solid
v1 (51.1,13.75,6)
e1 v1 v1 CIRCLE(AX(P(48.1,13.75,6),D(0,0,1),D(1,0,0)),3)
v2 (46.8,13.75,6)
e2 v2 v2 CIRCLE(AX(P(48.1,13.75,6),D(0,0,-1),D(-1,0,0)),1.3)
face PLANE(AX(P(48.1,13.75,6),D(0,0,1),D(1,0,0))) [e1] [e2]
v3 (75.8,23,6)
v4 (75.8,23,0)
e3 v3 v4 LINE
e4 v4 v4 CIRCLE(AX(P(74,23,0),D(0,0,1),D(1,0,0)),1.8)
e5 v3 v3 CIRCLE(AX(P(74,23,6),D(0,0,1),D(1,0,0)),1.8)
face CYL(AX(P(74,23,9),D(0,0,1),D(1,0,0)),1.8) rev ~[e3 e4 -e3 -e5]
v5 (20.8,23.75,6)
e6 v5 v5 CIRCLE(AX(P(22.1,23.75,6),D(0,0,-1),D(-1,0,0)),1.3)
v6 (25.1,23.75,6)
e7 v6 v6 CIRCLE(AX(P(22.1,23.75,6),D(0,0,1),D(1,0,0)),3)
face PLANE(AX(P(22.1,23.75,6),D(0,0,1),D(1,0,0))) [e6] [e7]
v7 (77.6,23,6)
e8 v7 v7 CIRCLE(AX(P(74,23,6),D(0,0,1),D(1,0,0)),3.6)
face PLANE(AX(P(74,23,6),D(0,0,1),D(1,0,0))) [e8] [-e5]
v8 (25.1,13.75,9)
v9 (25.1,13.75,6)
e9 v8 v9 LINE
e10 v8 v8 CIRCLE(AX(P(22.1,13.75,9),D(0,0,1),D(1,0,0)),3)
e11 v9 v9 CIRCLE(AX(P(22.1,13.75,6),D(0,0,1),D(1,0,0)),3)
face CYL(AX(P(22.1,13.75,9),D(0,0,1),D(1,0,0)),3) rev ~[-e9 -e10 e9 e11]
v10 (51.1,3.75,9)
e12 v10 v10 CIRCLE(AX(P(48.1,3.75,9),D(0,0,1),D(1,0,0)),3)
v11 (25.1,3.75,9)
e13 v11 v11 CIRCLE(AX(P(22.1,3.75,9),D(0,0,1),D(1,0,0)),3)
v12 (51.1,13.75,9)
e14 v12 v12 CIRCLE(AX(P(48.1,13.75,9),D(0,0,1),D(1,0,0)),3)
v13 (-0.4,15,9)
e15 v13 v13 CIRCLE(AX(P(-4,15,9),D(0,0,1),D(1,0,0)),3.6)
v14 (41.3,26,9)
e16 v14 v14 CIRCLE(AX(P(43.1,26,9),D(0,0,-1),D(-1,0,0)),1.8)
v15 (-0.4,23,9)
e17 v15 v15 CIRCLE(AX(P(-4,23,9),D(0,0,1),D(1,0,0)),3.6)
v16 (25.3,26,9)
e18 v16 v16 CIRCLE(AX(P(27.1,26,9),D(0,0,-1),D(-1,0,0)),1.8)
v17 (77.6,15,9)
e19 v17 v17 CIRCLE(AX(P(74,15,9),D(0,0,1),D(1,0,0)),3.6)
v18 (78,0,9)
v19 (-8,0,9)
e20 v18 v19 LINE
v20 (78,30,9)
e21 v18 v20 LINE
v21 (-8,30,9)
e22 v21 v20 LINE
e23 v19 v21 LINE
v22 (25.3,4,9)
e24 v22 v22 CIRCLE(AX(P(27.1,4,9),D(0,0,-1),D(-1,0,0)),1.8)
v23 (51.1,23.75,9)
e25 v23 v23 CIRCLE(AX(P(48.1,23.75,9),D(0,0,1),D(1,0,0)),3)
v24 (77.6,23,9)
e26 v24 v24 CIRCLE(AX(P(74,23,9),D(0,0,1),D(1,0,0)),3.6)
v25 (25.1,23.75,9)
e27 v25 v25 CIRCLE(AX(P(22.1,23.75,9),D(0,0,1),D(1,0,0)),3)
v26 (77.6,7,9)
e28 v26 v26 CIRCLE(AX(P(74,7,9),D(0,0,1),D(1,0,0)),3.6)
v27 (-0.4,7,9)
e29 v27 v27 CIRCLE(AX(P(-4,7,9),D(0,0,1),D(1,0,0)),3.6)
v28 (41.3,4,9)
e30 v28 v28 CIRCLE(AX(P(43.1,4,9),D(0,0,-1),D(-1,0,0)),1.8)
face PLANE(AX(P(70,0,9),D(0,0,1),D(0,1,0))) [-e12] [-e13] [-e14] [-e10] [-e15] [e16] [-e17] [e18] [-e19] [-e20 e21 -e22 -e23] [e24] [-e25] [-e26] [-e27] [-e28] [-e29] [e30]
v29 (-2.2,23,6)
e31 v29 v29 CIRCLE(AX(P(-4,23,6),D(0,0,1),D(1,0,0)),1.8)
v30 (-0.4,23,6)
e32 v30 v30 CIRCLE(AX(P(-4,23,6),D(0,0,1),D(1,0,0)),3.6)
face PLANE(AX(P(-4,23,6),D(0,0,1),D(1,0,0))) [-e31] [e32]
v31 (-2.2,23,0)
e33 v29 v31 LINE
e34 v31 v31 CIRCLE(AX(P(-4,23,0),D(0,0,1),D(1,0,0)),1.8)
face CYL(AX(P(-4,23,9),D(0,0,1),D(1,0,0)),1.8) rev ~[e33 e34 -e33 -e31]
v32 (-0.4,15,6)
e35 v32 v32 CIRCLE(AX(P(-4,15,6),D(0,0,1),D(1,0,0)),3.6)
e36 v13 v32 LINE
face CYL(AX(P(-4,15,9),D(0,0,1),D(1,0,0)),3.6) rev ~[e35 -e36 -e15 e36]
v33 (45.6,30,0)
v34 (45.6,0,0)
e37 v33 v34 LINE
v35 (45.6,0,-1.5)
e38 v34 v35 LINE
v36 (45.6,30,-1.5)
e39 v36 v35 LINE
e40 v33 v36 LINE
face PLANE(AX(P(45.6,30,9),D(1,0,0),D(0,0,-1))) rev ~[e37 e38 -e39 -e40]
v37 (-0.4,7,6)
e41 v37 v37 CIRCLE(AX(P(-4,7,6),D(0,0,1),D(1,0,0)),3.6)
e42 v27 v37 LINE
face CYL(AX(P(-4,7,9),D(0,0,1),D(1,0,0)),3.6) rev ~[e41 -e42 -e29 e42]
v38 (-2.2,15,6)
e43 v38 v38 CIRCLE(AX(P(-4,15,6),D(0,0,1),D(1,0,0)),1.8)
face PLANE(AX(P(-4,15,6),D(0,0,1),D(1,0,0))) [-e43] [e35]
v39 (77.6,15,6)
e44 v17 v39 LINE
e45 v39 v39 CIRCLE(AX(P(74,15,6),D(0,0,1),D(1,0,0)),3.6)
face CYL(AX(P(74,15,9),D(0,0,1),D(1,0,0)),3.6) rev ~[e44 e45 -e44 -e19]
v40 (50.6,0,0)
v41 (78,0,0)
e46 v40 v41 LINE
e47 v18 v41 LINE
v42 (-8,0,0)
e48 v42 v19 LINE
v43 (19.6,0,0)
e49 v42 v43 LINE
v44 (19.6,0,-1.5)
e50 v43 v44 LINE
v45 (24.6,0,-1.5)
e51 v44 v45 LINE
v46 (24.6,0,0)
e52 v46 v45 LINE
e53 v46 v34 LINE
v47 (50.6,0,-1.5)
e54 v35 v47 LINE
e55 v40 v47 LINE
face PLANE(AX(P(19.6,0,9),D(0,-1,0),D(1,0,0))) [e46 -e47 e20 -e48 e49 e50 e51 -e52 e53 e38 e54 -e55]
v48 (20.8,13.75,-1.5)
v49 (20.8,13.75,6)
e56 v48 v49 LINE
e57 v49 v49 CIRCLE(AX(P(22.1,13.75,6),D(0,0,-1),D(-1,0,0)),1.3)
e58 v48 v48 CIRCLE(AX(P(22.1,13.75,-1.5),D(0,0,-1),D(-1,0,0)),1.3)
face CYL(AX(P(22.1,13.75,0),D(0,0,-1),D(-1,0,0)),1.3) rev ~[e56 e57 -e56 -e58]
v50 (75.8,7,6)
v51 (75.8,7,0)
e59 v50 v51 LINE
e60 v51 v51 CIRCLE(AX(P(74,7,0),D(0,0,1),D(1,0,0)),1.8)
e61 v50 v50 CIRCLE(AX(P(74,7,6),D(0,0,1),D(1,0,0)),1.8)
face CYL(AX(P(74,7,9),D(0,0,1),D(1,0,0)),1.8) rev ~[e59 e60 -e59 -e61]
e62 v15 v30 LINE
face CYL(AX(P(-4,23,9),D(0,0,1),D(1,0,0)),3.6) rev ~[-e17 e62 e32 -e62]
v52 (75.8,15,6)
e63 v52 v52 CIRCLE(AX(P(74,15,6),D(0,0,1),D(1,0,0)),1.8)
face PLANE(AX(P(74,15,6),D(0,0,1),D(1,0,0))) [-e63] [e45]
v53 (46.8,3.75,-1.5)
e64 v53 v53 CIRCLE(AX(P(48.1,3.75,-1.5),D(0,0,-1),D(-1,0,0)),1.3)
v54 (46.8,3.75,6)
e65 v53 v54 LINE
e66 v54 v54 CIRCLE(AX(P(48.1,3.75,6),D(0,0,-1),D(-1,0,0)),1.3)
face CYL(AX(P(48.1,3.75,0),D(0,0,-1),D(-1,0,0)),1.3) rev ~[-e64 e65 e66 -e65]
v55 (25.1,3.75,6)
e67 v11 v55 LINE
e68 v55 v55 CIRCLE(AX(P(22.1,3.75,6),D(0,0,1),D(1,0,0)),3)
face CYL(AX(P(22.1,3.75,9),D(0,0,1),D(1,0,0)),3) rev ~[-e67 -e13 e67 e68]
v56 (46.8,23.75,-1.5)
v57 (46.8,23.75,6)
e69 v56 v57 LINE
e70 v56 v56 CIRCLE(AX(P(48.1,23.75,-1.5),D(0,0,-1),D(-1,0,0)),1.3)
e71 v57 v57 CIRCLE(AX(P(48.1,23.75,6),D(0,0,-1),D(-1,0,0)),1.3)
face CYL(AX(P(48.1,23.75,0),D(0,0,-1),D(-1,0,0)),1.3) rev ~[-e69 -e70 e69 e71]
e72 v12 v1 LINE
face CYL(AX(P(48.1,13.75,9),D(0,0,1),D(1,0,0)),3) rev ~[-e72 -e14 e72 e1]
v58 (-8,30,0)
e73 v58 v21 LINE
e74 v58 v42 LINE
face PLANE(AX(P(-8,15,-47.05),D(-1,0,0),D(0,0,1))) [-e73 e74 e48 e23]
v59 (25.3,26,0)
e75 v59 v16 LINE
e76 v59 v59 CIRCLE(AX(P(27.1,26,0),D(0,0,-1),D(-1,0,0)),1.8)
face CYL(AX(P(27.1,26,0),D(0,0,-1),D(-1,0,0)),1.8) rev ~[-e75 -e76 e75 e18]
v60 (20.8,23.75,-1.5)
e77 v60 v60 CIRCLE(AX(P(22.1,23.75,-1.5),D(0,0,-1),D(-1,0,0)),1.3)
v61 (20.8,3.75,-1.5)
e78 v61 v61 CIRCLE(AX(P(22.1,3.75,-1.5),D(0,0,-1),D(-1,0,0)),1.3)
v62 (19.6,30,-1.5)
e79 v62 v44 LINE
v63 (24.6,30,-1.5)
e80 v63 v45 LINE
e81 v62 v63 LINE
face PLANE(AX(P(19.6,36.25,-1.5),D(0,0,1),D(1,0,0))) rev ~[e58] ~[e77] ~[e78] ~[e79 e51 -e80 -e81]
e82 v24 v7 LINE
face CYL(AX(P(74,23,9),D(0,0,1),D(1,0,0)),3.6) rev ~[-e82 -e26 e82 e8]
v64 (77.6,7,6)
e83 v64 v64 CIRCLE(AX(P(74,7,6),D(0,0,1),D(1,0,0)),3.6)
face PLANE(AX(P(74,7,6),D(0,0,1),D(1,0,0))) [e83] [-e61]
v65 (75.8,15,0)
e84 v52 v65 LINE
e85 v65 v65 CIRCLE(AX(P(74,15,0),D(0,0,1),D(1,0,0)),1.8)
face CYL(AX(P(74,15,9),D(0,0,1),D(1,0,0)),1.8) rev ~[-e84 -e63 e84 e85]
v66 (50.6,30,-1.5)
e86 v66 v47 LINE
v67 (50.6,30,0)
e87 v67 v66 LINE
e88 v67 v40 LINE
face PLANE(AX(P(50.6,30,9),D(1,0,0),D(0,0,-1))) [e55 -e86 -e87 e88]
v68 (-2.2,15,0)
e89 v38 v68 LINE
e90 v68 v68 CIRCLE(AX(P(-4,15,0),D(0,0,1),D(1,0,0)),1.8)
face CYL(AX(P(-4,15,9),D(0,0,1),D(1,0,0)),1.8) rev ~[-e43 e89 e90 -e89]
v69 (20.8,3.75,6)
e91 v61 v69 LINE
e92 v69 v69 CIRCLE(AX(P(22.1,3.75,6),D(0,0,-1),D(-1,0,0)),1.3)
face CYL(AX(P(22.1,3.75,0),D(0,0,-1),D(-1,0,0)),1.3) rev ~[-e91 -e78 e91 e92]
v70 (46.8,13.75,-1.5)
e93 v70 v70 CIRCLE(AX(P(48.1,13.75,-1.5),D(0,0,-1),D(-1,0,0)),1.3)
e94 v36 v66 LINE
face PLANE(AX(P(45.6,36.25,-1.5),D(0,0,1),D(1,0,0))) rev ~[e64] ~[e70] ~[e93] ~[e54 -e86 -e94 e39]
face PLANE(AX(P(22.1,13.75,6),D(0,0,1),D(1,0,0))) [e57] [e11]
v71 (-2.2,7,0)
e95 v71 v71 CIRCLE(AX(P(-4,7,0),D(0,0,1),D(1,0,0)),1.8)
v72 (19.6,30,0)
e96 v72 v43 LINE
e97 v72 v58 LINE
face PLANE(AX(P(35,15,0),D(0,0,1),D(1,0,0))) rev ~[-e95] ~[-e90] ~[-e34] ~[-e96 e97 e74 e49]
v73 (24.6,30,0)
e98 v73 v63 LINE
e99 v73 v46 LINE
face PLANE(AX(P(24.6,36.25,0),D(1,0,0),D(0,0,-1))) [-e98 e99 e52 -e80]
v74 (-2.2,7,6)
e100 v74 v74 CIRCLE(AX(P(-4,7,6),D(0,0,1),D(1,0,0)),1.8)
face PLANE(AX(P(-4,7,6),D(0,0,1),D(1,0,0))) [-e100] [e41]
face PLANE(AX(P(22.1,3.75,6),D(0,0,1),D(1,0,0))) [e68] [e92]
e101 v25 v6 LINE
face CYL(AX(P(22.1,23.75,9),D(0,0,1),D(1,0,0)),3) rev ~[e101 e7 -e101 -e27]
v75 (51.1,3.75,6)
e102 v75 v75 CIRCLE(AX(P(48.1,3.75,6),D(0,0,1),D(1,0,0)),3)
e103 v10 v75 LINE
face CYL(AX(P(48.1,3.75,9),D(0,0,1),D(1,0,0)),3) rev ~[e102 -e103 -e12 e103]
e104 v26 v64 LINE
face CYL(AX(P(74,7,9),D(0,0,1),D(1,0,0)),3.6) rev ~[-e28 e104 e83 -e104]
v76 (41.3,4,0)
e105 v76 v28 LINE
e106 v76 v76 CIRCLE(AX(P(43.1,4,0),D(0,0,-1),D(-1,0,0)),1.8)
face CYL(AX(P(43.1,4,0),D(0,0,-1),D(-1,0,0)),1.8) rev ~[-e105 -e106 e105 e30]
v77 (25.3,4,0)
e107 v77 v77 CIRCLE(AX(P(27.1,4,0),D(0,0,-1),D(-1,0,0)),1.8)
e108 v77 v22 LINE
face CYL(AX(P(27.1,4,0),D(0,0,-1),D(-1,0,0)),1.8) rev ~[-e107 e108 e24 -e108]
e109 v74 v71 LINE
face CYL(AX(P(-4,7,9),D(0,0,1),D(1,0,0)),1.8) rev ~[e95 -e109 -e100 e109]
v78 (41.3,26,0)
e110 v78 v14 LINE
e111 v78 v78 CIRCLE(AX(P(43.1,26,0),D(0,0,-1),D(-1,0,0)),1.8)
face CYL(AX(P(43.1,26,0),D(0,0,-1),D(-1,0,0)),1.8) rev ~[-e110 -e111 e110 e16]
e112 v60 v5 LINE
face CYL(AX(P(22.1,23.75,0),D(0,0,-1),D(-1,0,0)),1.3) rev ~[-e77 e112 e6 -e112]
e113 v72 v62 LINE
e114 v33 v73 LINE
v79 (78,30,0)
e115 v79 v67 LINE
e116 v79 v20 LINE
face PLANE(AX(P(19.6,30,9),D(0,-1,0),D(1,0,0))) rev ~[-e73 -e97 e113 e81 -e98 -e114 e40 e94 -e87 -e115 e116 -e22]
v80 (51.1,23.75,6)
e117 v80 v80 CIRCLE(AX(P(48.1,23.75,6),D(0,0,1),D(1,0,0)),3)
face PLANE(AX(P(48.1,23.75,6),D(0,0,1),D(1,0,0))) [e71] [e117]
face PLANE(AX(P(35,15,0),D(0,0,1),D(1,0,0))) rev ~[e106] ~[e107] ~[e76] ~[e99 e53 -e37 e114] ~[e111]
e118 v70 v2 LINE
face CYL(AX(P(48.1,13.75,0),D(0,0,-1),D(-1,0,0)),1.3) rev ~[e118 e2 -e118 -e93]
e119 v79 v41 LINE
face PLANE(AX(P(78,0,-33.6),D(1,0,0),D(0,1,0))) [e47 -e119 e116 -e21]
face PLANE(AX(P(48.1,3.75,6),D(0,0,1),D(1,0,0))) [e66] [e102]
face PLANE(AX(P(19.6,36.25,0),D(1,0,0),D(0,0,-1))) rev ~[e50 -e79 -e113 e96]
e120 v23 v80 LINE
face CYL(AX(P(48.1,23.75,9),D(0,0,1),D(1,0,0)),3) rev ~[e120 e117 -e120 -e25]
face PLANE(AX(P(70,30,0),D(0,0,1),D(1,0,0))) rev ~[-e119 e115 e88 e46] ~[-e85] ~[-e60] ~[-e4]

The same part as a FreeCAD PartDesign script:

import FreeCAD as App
import Part
import Sketcher
from FreeCAD import Vector
Q = App.Units.Quantity


def add_polygon(sketch, points):
    """Adds a closed chain of lines whose ends are joined by coincident constraints."""
    first, n = sketch.GeometryCount, len(points)
    for a, b in zip(points, points[1:] + points[:1]):
        sketch.addGeometry(Part.LineSegment(App.Vector(*a, 0), App.Vector(*b, 0)), False)
    for i in range(n):
        sketch.addConstraint(Sketcher.Constraint("Coincident", first + i, 2, first + (i + 1) % n, 1))

doc = App.newDocument("Part")
body = doc.addObject("PartDesign::Body", "Body")

# Sketch on XY plane
sketch1 = doc.addObject("Sketcher::SketchObject", "Sketch")
body.addObject(sketch1)
sketch1.AttachmentSupport = (doc.XY_Plane, [""])
sketch1.MapMode = "FlatFace"
add_polygon(sketch1, [(0, 30), (0, 0), (70, 0), (70, 30)])  # lines 0-3
sketch1.addConstraint([
    Sketcher.Constraint("Vertical", 0),
    Sketcher.Constraint("Horizontal", 1),
    Sketcher.Constraint("Vertical", 2),
    Sketcher.Constraint("Horizontal", 3),
    Sketcher.Constraint("Coincident", 0, 2, -1, 1),
    Sketcher.Constraint("DistanceX", 1, 1, 1, 2, Q("70 mm")),
    Sketcher.Constraint("DistanceY", 0, 2, 0, 1, Q("30 mm")),
])
pad1 = doc.addObject("PartDesign::Pad", "Pad")
body.addObject(pad1)
pad1.Profile = sketch1
pad1.Length = 9

# Sketch on YZ plane
sketch2 = doc.addObject("Sketcher::SketchObject", "Sketch001")
body.addObject(sketch2)
sketch2.AttachmentSupport = (doc.YZ_Plane, [""])
sketch2.MapMode = "FlatFace"
add_polygon(sketch2, [(30, -103), (0, -103), (0, 9), (30, 9)])  # lines 0-3
sketch2.addConstraint([
    Sketcher.Constraint("Horizontal", 0),
    Sketcher.Constraint("Vertical", 1),
    Sketcher.Constraint("Horizontal", 2),
    Sketcher.Constraint("Vertical", 3),
    Sketcher.Constraint("PointOnObject", 0, 2, -2),
    Sketcher.Constraint("DistanceX", 0, 2, 0, 1, Q("30 mm")),
    Sketcher.Constraint("DistanceY", 1, 1, 1, 2, Q("112.1 mm")),
    Sketcher.Constraint("DistanceY", -1, 1, 1, 2, Q("9 mm")),
])
pad2 = doc.addObject("PartDesign::Pad", "Pad001")
body.addObject(pad2)
pad2.Profile = sketch2
pad2.Length = 8
pad2.Reversed = True

# Sketch on YZ plane
sketch3 = doc.addObject("Sketcher::SketchObject", "Sketch002")
body.addObject(sketch3)
sketch3.AttachmentSupport = (doc.YZ_Plane, [""])
sketch3.MapMode = "FlatFace"
sketch3.AttachmentOffset = App.Placement(Vector(0, 0, 70), App.Rotation())
add_polygon(sketch3, [(30, 9), (0, 9), (0, -34), (30, -34)])  # lines 0-3
sketch3.addConstraint([
    Sketcher.Constraint("Horizontal", 0),
    Sketcher.Constraint("Vertical", 1),
    Sketcher.Constraint("Horizontal", 2),
    Sketcher.Constraint("Vertical", 3),
    Sketcher.Constraint("PointOnObject", 0, 2, -2),
    Sketcher.Constraint("DistanceX", 0, 2, 0, 1, Q("30 mm")),
    Sketcher.Constraint("DistanceY", 1, 2, 1, 1, Q("42.6 mm")),
    Sketcher.Constraint("DistanceY", -1, 1, 0, 2, Q("9 mm")),
])
pad3 = doc.addObject("PartDesign::Pad", "Pad002")
body.addObject(pad3)
pad3.Profile = sketch3
pad3.Length = 8

# Sketch on XY plane
sketch4 = doc.addObject("Sketcher::SketchObject", "Sketch003")
body.addObject(sketch4)
sketch4.AttachmentSupport = (doc.XY_Plane, [""])
sketch4.MapMode = "FlatFace"
sketch4.AttachmentOffset = App.Placement(Vector(0, 0, -33.6), App.Rotation())
add_polygon(sketch4, [(78, 30), (78, 0), (59.5, 0), (59.5, 30)])  # lines 0-3
sketch4.addGeometry(Part.Circle(Vector(65.8, 10, 0), Vector(0, 0, 1), 2), False)  # 4
sketch4.addGeometry(Part.Circle(Vector(65.8, 18, 0), Vector(0, 0, 1), 2), False)  # 5
sketch4.addGeometry(Part.Circle(Vector(65.8, 26, 0), Vector(0, 0, 1), 2), False)  # 6
sketch4.addConstraint([
    Sketcher.Constraint("Vertical", 0),
    Sketcher.Constraint("Horizontal", 1),
    Sketcher.Constraint("Vertical", 2),
    Sketcher.Constraint("Horizontal", 3),
    Sketcher.Constraint("Equal", 4, 5),
    Sketcher.Constraint("Equal", 5, 6),
    Sketcher.Constraint("PointOnObject", 0, 2, -1),
    Sketcher.Constraint("Vertical", 4, 3, 5, 3),
    Sketcher.Constraint("Vertical", 5, 3, 6, 3),
    Sketcher.Constraint("Diameter", 4, Q("4 mm")),
    Sketcher.Constraint("DistanceY", 0, 2, 0, 1, Q("30 mm")),
    Sketcher.Constraint("DistanceX", 1, 2, 1, 1, Q("18.5 mm")),
    Sketcher.Constraint("DistanceY", -1, 1, 4, 3, Q("10 mm")),
    Sketcher.Constraint("DistanceY", -1, 1, 5, 3, Q("18 mm")),
    Sketcher.Constraint("DistanceY", -1, 1, 6, 3, Q("26 mm")),
    Sketcher.Constraint("DistanceX", -1, 1, 0, 2, Q("78 mm")),
    Sketcher.Constraint("DistanceX", -1, 1, 4, 3, Q("65.75 mm")),
])
pad4 = doc.addObject("PartDesign::Pad", "Pad003")
body.addObject(pad4)
pad4.Profile = sketch4
pad4.Length = 5.5
pad4.Reversed = True

# Sketch on YZ plane
sketch5 = doc.addObject("Sketcher::SketchObject", "Sketch004")
body.addObject(sketch5)
sketch5.AttachmentSupport = (doc.YZ_Plane, [""])
sketch5.MapMode = "FlatFace"
sketch5.AttachmentOffset = App.Placement(Vector(0, 0, -8), App.Rotation())
sketch5.addGeometry([
    Part.Circle(Vector(23, -23, 0), Vector(0, 0, 1), 2),  # 0
    Part.Circle(Vector(15, -23, 0), Vector(0, 0, 1), 2),  # 1
    Part.Circle(Vector(7, -23, 0), Vector(0, 0, 1), 2),  # 2
    Part.Circle(Vector(23, -15, 0), Vector(0, 0, 1), 2),  # 3
    Part.Circle(Vector(15, -15, 0), Vector(0, 0, 1), 2),  # 4
    Part.Circle(Vector(7, -15, 0), Vector(0, 0, 1), 2),  # 5
    Part.Circle(Vector(23, -7, 0), Vector(0, 0, 1), 2),  # 6
    Part.Circle(Vector(15, -7, 0), Vector(0, 0, 1), 2),  # 7
    Part.Circle(Vector(7, -7, 0), Vector(0, 0, 1), 2),  # 8
], False)
sketch5.addConstraint([
    Sketcher.Constraint("Equal", 0, 1),
    Sketcher.Constraint("Equal", 1, 2),
    Sketcher.Constraint("Equal", 2, 3),
    Sketcher.Constraint("Equal", 3, 4),
    Sketcher.Constraint("Equal", 4, 5),
    Sketcher.Constraint("Equal", 5, 6),
    Sketcher.Constraint("Equal", 6, 7),
    Sketcher.Constraint("Equal", 7, 8),
    Sketcher.Constraint("Horizontal", 0, 3, 1, 3),
    Sketcher.Constraint("Horizontal", 1, 3, 2, 3),
    Sketcher.Constraint("Horizontal", 3, 3, 4, 3),
    Sketcher.Constraint("Horizontal", 4, 3, 5, 3),
    Sketcher.Constraint("Horizontal", 6, 3, 7, 3),
    Sketcher.Constraint("Horizontal", 7, 3, 8, 3),
    Sketcher.Constraint("Vertical", 0, 3, 3, 3),
    Sketcher.Constraint("Vertical", 1, 3, 4, 3),
    Sketcher.Constraint("Vertical", 2, 3, 5, 3),
    Sketcher.Constraint("Vertical", 3, 3, 6, 3),
    Sketcher.Constraint("Vertical", 4, 3, 7, 3),
    Sketcher.Constraint("Vertical", 5, 3, 8, 3),
    Sketcher.Constraint("Diameter", 0, Q("4 mm")),
    Sketcher.Constraint("DistanceX", -1, 1, 0, 3, Q("23 mm")),
    Sketcher.Constraint("DistanceY", 0, 3, -1, 1, Q("23 mm")),
    Sketcher.Constraint("DistanceX", -1, 1, 1, 3, Q("15 mm")),
    Sketcher.Constraint("DistanceX", -1, 1, 2, 3, Q("7 mm")),
    Sketcher.Constraint("DistanceY", 3, 3, -1, 1, Q("15 mm")),
    Sketcher.Constraint("DistanceY", 6, 3, -1, 1, Q("7 mm")),
])
pocket1 = doc.addObject("PartDesign::Pocket", "Pocket")
body.addObject(pocket1)
pocket1.Profile = sketch5
pocket1.Length = 8
pocket1.Reversed = True

# Sketch on XY plane
sketch6 = doc.addObject("Sketcher::SketchObject", "Sketch005")
body.addObject(sketch6)
sketch6.AttachmentSupport = (doc.XY_Plane, [""])
sketch6.MapMode = "FlatFace"
sketch6.AttachmentOffset = App.Placement(Vector(0, 0, -103.1), App.Rotation())
sketch6.addGeometry([
    Part.Circle(Vector(-3, 23, 0), Vector(0, 0, 1), 1.8),
    Part.Circle(Vector(-3, 15, 0), Vector(0, 0, 1), 1.8),
    Part.Circle(Vector(-3, 7, 0), Vector(0, 0, 1), 1.8),
], False)
sketch6.addConstraint([
    Sketcher.Constraint("Equal", 0, 1),
    Sketcher.Constraint("Equal", 1, 2),
    Sketcher.Constraint("Vertical", 0, 3, 1, 3),
    Sketcher.Constraint("Vertical", 1, 3, 2, 3),
    Sketcher.Constraint("Diameter", 0, Q("3.6 mm")),
    Sketcher.Constraint("DistanceX", 0, 3, -1, 1, Q("3 mm")),
    Sketcher.Constraint("DistanceY", -1, 1, 0, 3, Q("23 mm")),
    Sketcher.Constraint("DistanceY", -1, 1, 1, 3, Q("15 mm")),
    Sketcher.Constraint("DistanceY", -1, 1, 2, 3, Q("7 mm")),
])
pocket2 = doc.addObject("PartDesign::Pocket", "Pocket001")
body.addObject(pocket2)
pocket2.Profile = sketch6
pocket2.Length = 8
pocket2.Reversed = True

# Sketch on YZ plane
sketch7 = doc.addObject("Sketcher::SketchObject", "Sketch006")
body.addObject(sketch7)
sketch7.AttachmentSupport = (doc.YZ_Plane, [""])
sketch7.MapMode = "FlatFace"
sketch7.AttachmentOffset = App.Placement(Vector(0, 0, 78), App.Rotation())
sketch7.addGeometry([
    Part.Circle(Vector(23, -9.1, 0), Vector(0, 0, 1), 2),  # 0
    Part.Circle(Vector(15, -9.1, 0), Vector(0, 0, 1), 2),  # 1
    Part.Circle(Vector(7, -9.1, 0), Vector(0, 0, 1), 2),  # 2
    Part.Circle(Vector(23, -17.1, 0), Vector(0, 0, 1), 2),  # 3
    Part.Circle(Vector(15, -17.1, 0), Vector(0, 0, 1), 2),  # 4
    Part.Circle(Vector(7, -17.1, 0), Vector(0, 0, 1), 2),  # 5
    Part.Circle(Vector(23, -25.1, 0), Vector(0, 0, 1), 2),  # 6
    Part.Circle(Vector(15, -25.1, 0), Vector(0, 0, 1), 2),  # 7
    Part.Circle(Vector(7, -25.1, 0), Vector(0, 0, 1), 2),  # 8
], False)
sketch7.addConstraint([
    Sketcher.Constraint("Equal", 0, 1),
    Sketcher.Constraint("Equal", 1, 2),
    Sketcher.Constraint("Equal", 2, 3),
    Sketcher.Constraint("Equal", 3, 4),
    Sketcher.Constraint("Equal", 4, 5),
    Sketcher.Constraint("Equal", 5, 6),
    Sketcher.Constraint("Equal", 6, 7),
    Sketcher.Constraint("Equal", 7, 8),
    Sketcher.Constraint("Horizontal", 0, 3, 1, 3),
    Sketcher.Constraint("Horizontal", 1, 3, 2, 3),
    Sketcher.Constraint("Horizontal", 3, 3, 4, 3),
    Sketcher.Constraint("Horizontal", 4, 3, 5, 3),
    Sketcher.Constraint("Horizontal", 6, 3, 7, 3),
    Sketcher.Constraint("Horizontal", 7, 3, 8, 3),
    Sketcher.Constraint("Vertical", 0, 3, 3, 3),
    Sketcher.Constraint("Vertical", 1, 3, 4, 3),
    Sketcher.Constraint("Vertical", 2, 3, 5, 3),
    Sketcher.Constraint("Vertical", 3, 3, 6, 3),
    Sketcher.Constraint("Vertical", 4, 3, 7, 3),
    Sketcher.Constraint("Vertical", 5, 3, 8, 3),
    Sketcher.Constraint("Diameter", 0, Q("4 mm")),
    Sketcher.Constraint("DistanceX", -1, 1, 0, 3, Q("23 mm")),
    Sketcher.Constraint("DistanceX", -1, 1, 1, 3, Q("15 mm")),
    Sketcher.Constraint("DistanceX", -1, 1, 2, 3, Q("7 mm")),
    Sketcher.Constraint("DistanceY", 3, 3, 0, 3, Q("8 mm")),
    Sketcher.Constraint("DistanceY", 6, 3, 3, 3, Q("8 mm")),
    Sketcher.Constraint("DistanceY", 0, 3, -1, 1, Q("9.1 mm")),
])
pocket3 = doc.addObject("PartDesign::Pocket", "Pocket002")
body.addObject(pocket3)
pocket3.Profile = sketch7
pocket3.Length = 8

# Sketch on YZ plane
sketch8 = doc.addObject("Sketcher::SketchObject", "Sketch007")
body.addObject(sketch8)
sketch8.AttachmentSupport = (doc.YZ_Plane, [""])
sketch8.MapMode = "FlatFace"
sketch8.AttachmentOffset = App.Placement(Vector(0, 0, -8), App.Rotation())
sketch8.addGeometry([
    Part.Circle(Vector(23, -85.1, 0), Vector(0, 0, 1), 2),  # 0
    Part.Circle(Vector(15, -85.1, 0), Vector(0, 0, 1), 2),  # 1
    Part.Circle(Vector(7, -85.1, 0), Vector(0, 0, 1), 2),  # 2
    Part.Circle(Vector(23, -77.1, 0), Vector(0, 0, 1), 2),  # 3
    Part.Circle(Vector(15, -77.1, 0), Vector(0, 0, 1), 2),  # 4
    Part.Circle(Vector(7, -77.1, 0), Vector(0, 0, 1), 2),  # 5
    Part.Circle(Vector(23, -69.1, 0), Vector(0, 0, 1), 2),  # 6
    Part.Circle(Vector(15, -69.1, 0), Vector(0, 0, 1), 2),  # 7
    Part.Circle(Vector(7, -69.1, 0), Vector(0, 0, 1), 2),  # 8
    Part.Circle(Vector(23, -61.1, 0), Vector(0, 0, 1), 2),  # 9
    Part.Circle(Vector(15, -61.1, 0), Vector(0, 0, 1), 2),  # 10
    Part.Circle(Vector(7, -61.1, 0), Vector(0, 0, 1), 2),  # 11
], False)
sketch8.addConstraint([
    Sketcher.Constraint("Equal", 0, 1),
    Sketcher.Constraint("Equal", 1, 2),
    Sketcher.Constraint("Equal", 2, 3),
    Sketcher.Constraint("Equal", 3, 4),
    Sketcher.Constraint("Equal", 4, 5),
    Sketcher.Constraint("Equal", 5, 6),
    Sketcher.Constraint("Equal", 6, 7),
    Sketcher.Constraint("Equal", 7, 8),
    Sketcher.Constraint("Equal", 8, 9),
    Sketcher.Constraint("Equal", 9, 10),
    Sketcher.Constraint("Equal", 10, 11),
    Sketcher.Constraint("Horizontal", 0, 3, 1, 3),
    Sketcher.Constraint("Horizontal", 1, 3, 2, 3),
    Sketcher.Constraint("Horizontal", 3, 3, 4, 3),
    Sketcher.Constraint("Horizontal", 4, 3, 5, 3),
    Sketcher.Constraint("Horizontal", 6, 3, 7, 3),
    Sketcher.Constraint("Horizontal", 7, 3, 8, 3),
    Sketcher.Constraint("Horizontal", 9, 3, 10, 3),
    Sketcher.Constraint("Horizontal", 10, 3, 11, 3),
    Sketcher.Constraint("Vertical", 0, 3, 3, 3),
    Sketcher.Constraint("Vertical", 1, 3, 4, 3),
    Sketcher.Constraint("Vertical", 2, 3, 5, 3),
    Sketcher.Constraint("Vertical", 3, 3, 6, 3),
    Sketcher.Constraint("Vertical", 4, 3, 7, 3),
    Sketcher.Constraint("Vertical", 5, 3, 8, 3),
    Sketcher.Constraint("Vertical", 6, 3, 9, 3),
    Sketcher.Constraint("Vertical", 7, 3, 10, 3),
    Sketcher.Constraint("Vertical", 8, 3, 11, 3),
    Sketcher.Constraint("Diameter", 0, Q("4 mm")),
    Sketcher.Constraint("DistanceX", -1, 1, 0, 3, Q("23 mm")),
    Sketcher.Constraint("DistanceX", -1, 1, 1, 3, Q("15 mm")),
    Sketcher.Constraint("DistanceX", -1, 1, 2, 3, Q("7 mm")),
    Sketcher.Constraint("DistanceY", 0, 3, 3, 3, Q("8 mm")),
    Sketcher.Constraint("DistanceY", 3, 3, 6, 3, Q("8 mm")),
    Sketcher.Constraint("DistanceY", 6, 3, 9, 3, Q("8 mm")),
    Sketcher.Constraint("DistanceY", 0, 3, -1, 1, Q("85.1 mm")),
])
pocket4 = doc.addObject("PartDesign::Pocket", "Pocket003")
body.addObject(pocket4)
pocket4.Profile = sketch8
pocket4.Length = 10
pocket4.Reversed = True

# Sketch on XZ plane
sketch9 = doc.addObject("Sketcher::SketchObject", "Sketch008")
body.addObject(sketch9)
sketch9.AttachmentSupport = (doc.XZ_Plane, [""])
sketch9.MapMode = "FlatFace"
sketch9.AttachmentOffset = App.Placement(Vector(0, 0, -30), App.Rotation())
add_polygon(sketch9, [(20, 0), (20, 9), (25, 9), (25, 0)])  # lines 0-3
add_polygon(sketch9, [(46, 0), (46, 9), (51, 9), (51, 0)])  # lines 4-7
sketch9.addConstraint([
    Sketcher.Constraint("Vertical", 0),
    Sketcher.Constraint("Horizontal", 1),
    Sketcher.Constraint("Vertical", 2),
    Sketcher.Constraint("Horizontal", 3),
    Sketcher.Constraint("Vertical", 4),
    Sketcher.Constraint("Horizontal", 5),
    Sketcher.Constraint("Vertical", 6),
    Sketcher.Constraint("Horizontal", 7),
    Sketcher.Constraint("PointOnObject", 2, 2, -1),
    Sketcher.Constraint("PointOnObject", 6, 2, -1),
    Sketcher.Constraint("Horizontal", 1, 2, 4, 2),
    Sketcher.Constraint("Equal", 3, 5),
    Sketcher.Constraint("DistanceX", 1, 1, 1, 2, Q("5 mm")),
    Sketcher.Constraint("DistanceY", 0, 1, 0, 2, Q("9 mm")),
    Sketcher.Constraint("DistanceX", 1, 2, 4, 2, Q("21 mm")),
    Sketcher.Constraint("DistanceX", -1, 1, 0, 2, Q("19.6 mm")),
])
pad5 = doc.addObject("PartDesign::Pad", "Pad004")
body.addObject(pad5)
pad5.Profile = sketch9
pad5.Length = 36.25

# Sketch on XY plane
sketch10 = doc.addObject("Sketcher::SketchObject", "Sketch009")
body.addObject(sketch10)
sketch10.AttachmentSupport = (doc.XY_Plane, [""])
sketch10.MapMode = "FlatFace"
add_polygon(sketch10, [(51, 36), (51, 30), (46, 30), (46, 36)])  # lines 0-3
add_polygon(sketch10, [(25, 36), (25, 30), (20, 30), (20, 36)])  # lines 4-7
sketch10.addConstraint([
    Sketcher.Constraint("Vertical", 0),
    Sketcher.Constraint("Horizontal", 1),
    Sketcher.Constraint("Vertical", 2),
    Sketcher.Constraint("Horizontal", 3),
    Sketcher.Constraint("Vertical", 4),
    Sketcher.Constraint("Horizontal", 5),
    Sketcher.Constraint("Vertical", 6),
    Sketcher.Constraint("Horizontal", 7),
    Sketcher.Constraint("Horizontal", 1, 2, 4, 2),
    Sketcher.Constraint("Horizontal", 3, 2, 6, 2),
    Sketcher.Constraint("Equal", 3, 5),
    Sketcher.Constraint("DistanceX", 1, 2, 1, 1, Q("5 mm")),
    Sketcher.Constraint("DistanceY", -1, 1, 0, 2, Q("30 mm")),
    Sketcher.Constraint("DistanceX", 4, 2, 1, 2, Q("21 mm")),
    Sketcher.Constraint("DistanceY", 0, 2, 0, 1, Q("6.25 mm")),
    Sketcher.Constraint("DistanceX", -1, 1, 0, 2, Q("50.6 mm")),
])
pad6 = doc.addObject("PartDesign::Pad", "Pad005")
body.addObject(pad6)
pad6.Profile = sketch10
pad6.Length = 9

# Sketch on XY plane
sketch11 = doc.addObject("Sketcher::SketchObject", "Sketch010")
body.addObject(sketch11)
sketch11.AttachmentSupport = (doc.XY_Plane, [""])
sketch11.MapMode = "FlatFace"
sketch11.addGeometry([
    Part.Circle(Vector(48.1, 23.8, 0), Vector(0, 0, 1), 1.3),  # 0
    Part.Circle(Vector(48.1, 13.8, 0), Vector(0, 0, 1), 1.3),  # 1
    Part.Circle(Vector(48.1, 3.8, 0), Vector(0, 0, 1), 1.3),  # 2
    Part.Circle(Vector(22.1, 23.8, 0), Vector(0, 0, 1), 1.3),  # 3
    Part.Circle(Vector(22.1, 13.8, 0), Vector(0, 0, 1), 1.3),  # 4
    Part.Circle(Vector(22.1, 3.8, 0), Vector(0, 0, 1), 1.3),  # 5
], False)
sketch11.addConstraint([
    Sketcher.Constraint("Equal", 0, 1),
    Sketcher.Constraint("Equal", 1, 2),
    Sketcher.Constraint("Equal", 2, 3),
    Sketcher.Constraint("Equal", 3, 4),
    Sketcher.Constraint("Equal", 4, 5),
    Sketcher.Constraint("Horizontal", 0, 3, 3, 3),
    Sketcher.Constraint("Horizontal", 1, 3, 4, 3),
    Sketcher.Constraint("Horizontal", 2, 3, 5, 3),
    Sketcher.Constraint("Vertical", 0, 3, 1, 3),
    Sketcher.Constraint("Vertical", 1, 3, 2, 3),
    Sketcher.Constraint("Vertical", 3, 3, 4, 3),
    Sketcher.Constraint("Vertical", 4, 3, 5, 3),
    Sketcher.Constraint("Diameter", 0, Q("2.6 mm")),
    Sketcher.Constraint("DistanceY", 1, 3, 0, 3, Q("10 mm")),
    Sketcher.Constraint("DistanceY", 2, 3, 1, 3, Q("10 mm")),
    Sketcher.Constraint("DistanceX", 3, 3, 0, 3, Q("26 mm")),
    Sketcher.Constraint("DistanceX", -1, 1, 0, 3, Q("48.1 mm")),
    Sketcher.Constraint("DistanceY", -1, 1, 0, 3, Q("23.75 mm")),
])
pocket5 = doc.addObject("PartDesign::Pocket", "Pocket004")
body.addObject(pocket5)
pocket5.Profile = sketch11
pocket5.Length = 9
pocket5.Reversed = True

# Sketch on XZ plane
sketch12 = doc.addObject("Sketcher::SketchObject", "Sketch011")
body.addObject(sketch12)
sketch12.AttachmentSupport = (doc.XZ_Plane, [""])
sketch12.MapMode = "FlatFace"
sketch12.AttachmentOffset = App.Placement(Vector(0, 0, -36.25), App.Rotation())
add_polygon(sketch12, [(19.6, -1.5), (19.6, 0), (24.6, 0), (24.6, -1.5)])  # lines 0-3
add_polygon(sketch12, [(45.6, -1.5), (45.6, 0), (50.6, 0), (50.6, -1.5)])  # lines 4-7
sketch12.addConstraint([
    Sketcher.Constraint("Vertical", 0),
    Sketcher.Constraint("Horizontal", 1),
    Sketcher.Constraint("Vertical", 2),
    Sketcher.Constraint("Horizontal", 3),
    Sketcher.Constraint("Vertical", 4),
    Sketcher.Constraint("Horizontal", 5),
    Sketcher.Constraint("Vertical", 6),
    Sketcher.Constraint("Horizontal", 7),
    Sketcher.Constraint("PointOnObject", 0, 2, -1),
    Sketcher.Constraint("PointOnObject", 4, 2, -1),
    Sketcher.Constraint("Horizontal", 3, 2, 6, 2),
    Sketcher.Constraint("Equal", 3, 5),
    Sketcher.Constraint("DistanceX", 1, 1, 1, 2, Q("5 mm")),
    Sketcher.Constraint("DistanceY", 0, 1, 0, 2, Q("1.5 mm")),
    Sketcher.Constraint("DistanceX", 1, 2, 4, 2, Q("21 mm")),
    Sketcher.Constraint("DistanceX", -1, 1, 0, 2, Q("19.6 mm")),
])
pad7 = doc.addObject("PartDesign::Pad", "Pad006")
body.addObject(pad7)
pad7.Profile = sketch12
pad7.Length = 42.5

# Sketch on XY plane
sketch13 = doc.addObject("Sketcher::SketchObject", "Sketch012")
body.addObject(sketch13)
sketch13.AttachmentSupport = (doc.XY_Plane, [""])
sketch13.MapMode = "FlatFace"
sketch13.AttachmentOffset = App.Placement(Vector(0, 0, -1.5), App.Rotation())
sketch13.addGeometry([
    Part.Circle(Vector(48.1, 23.8, 0), Vector(0, 0, 1), 1.3),  # 0
    Part.Circle(Vector(48.1, 13.8, 0), Vector(0, 0, 1), 1.3),  # 1
    Part.Circle(Vector(48.1, 3.8, 0), Vector(0, 0, 1), 1.3),  # 2
    Part.Circle(Vector(22.1, 23.8, 0), Vector(0, 0, 1), 1.3),  # 3
    Part.Circle(Vector(22.1, 13.8, 0), Vector(0, 0, 1), 1.3),  # 4
    Part.Circle(Vector(22.1, 3.8, 0), Vector(0, 0, 1), 1.3),  # 5
], False)
sketch13.addConstraint([
    Sketcher.Constraint("Equal", 0, 1),
    Sketcher.Constraint("Equal", 1, 2),
    Sketcher.Constraint("Equal", 2, 3),
    Sketcher.Constraint("Equal", 3, 4),
    Sketcher.Constraint("Equal", 4, 5),
    Sketcher.Constraint("Horizontal", 0, 3, 3, 3),
    Sketcher.Constraint("Horizontal", 1, 3, 4, 3),
    Sketcher.Constraint("Horizontal", 2, 3, 5, 3),
    Sketcher.Constraint("Vertical", 0, 3, 1, 3),
    Sketcher.Constraint("Vertical", 1, 3, 2, 3),
    Sketcher.Constraint("Vertical", 3, 3, 4, 3),
    Sketcher.Constraint("Vertical", 4, 3, 5, 3),
    Sketcher.Constraint("Diameter", 0, Q("2.6 mm")),
    Sketcher.Constraint("DistanceY", 1, 3, 0, 3, Q("10 mm")),
    Sketcher.Constraint("DistanceY", 2, 3, 1, 3, Q("10 mm")),
    Sketcher.Constraint("DistanceX", 3, 3, 0, 3, Q("26 mm")),
    Sketcher.Constraint("DistanceX", -1, 1, 0, 3, Q("48.1 mm")),
    Sketcher.Constraint("DistanceY", -1, 1, 0, 3, Q("23.75 mm")),
])
pocket6 = doc.addObject("PartDesign::Pocket", "Pocket005")
body.addObject(pocket6)
pocket6.Profile = sketch13
pocket6.Length = 1.5
pocket6.Reversed = True

# Sketch on XY plane
sketch14 = doc.addObject("Sketcher::SketchObject", "Sketch013")
body.addObject(sketch14)
sketch14.AttachmentSupport = (doc.XY_Plane, [""])
sketch14.MapMode = "FlatFace"
sketch14.AttachmentOffset = App.Placement(Vector(0, 0, 9), App.Rotation())
add_polygon(sketch14, [(20, 36), (20, 30), (25, 30), (25, 36)])  # lines 0-3
add_polygon(sketch14, [(46, 36), (46, 30), (51, 30), (51, 36)])  # lines 4-7
add_polygon(sketch14, [(20, 0), (20, -6), (25, -6), (25, 0)])  # lines 8-11
add_polygon(sketch14, [(46, 0), (46, -6), (51, -6), (51, 0)])  # lines 12-15
sketch14.addConstraint([
    Sketcher.Constraint("Vertical", 0),
    Sketcher.Constraint("Horizontal", 1),
    Sketcher.Constraint("Vertical", 2),
    Sketcher.Constraint("Horizontal", 3),
    Sketcher.Constraint("Vertical", 4),
    Sketcher.Constraint("Horizontal", 5),
    Sketcher.Constraint("Vertical", 6),
    Sketcher.Constraint("Horizontal", 7),
    Sketcher.Constraint("Vertical", 8),
    Sketcher.Constraint("Horizontal", 9),
    Sketcher.Constraint("Vertical", 10),
    Sketcher.Constraint("Horizontal", 11),
    Sketcher.Constraint("Vertical", 12),
    Sketcher.Constraint("Horizontal", 13),
    Sketcher.Constraint("Vertical", 14),
    Sketcher.Constraint("Horizontal", 15),
    Sketcher.Constraint("PointOnObject", 10, 2, -1),
    Sketcher.Constraint("PointOnObject", 14, 2, -1),
    Sketcher.Constraint("Horizontal", 1, 2, 4, 2),
    Sketcher.Constraint("Horizontal", 3, 2, 6, 2),
    Sketcher.Constraint("Horizontal", 9, 2, 12, 2),
    Sketcher.Constraint("Vertical", 3, 2, 8, 2),
    Sketcher.Constraint("Vertical", 2, 2, 9, 2),
    Sketcher.Constraint("Vertical", 7, 2, 12, 2),
    Sketcher.Constraint("Vertical", 6, 2, 13, 2),
    Sketcher.Constraint("Equal", 3, 5),
    Sketcher.Constraint("Equal", 6, 8),
    Sketcher.Constraint("DistanceX", 1, 1, 1, 2, Q("5 mm")),
    Sketcher.Constraint("DistanceY", -1, 1, 0, 2, Q("30 mm")),
    Sketcher.Constraint("DistanceX", 1, 2, 4, 2, Q("21 mm")),
    Sketcher.Constraint("DistanceY", 0, 2, 0, 1, Q("6.25 mm")),
    Sketcher.Constraint("DistanceX", -1, 1, 0, 2, Q("19.6 mm")),
])
pocket7 = doc.addObject("PartDesign::Pocket", "Pocket006")
body.addObject(pocket7)
pocket7.Profile = sketch14
pocket7.Length = 11

# Sketch on XY plane
sketch15 = doc.addObject("Sketcher::SketchObject", "Sketch014")
body.addObject(sketch15)
sketch15.AttachmentSupport = (doc.XY_Plane, [""])
sketch15.MapMode = "FlatFace"
sketch15.AttachmentOffset = App.Placement(Vector(0, 0, 9), App.Rotation())
sketch15.addGeometry([
    Part.Circle(Vector(22.1, 23.8, 0), Vector(0, 0, 1), 3),  # 0
    Part.Circle(Vector(22.1, 13.8, 0), Vector(0, 0, 1), 3),  # 1
    Part.Circle(Vector(22.1, 3.8, 0), Vector(0, 0, 1), 3),  # 2
    Part.Circle(Vector(48.1, 13.8, 0), Vector(0, 0, 1), 3),  # 3
    Part.Circle(Vector(48.1, 3.8, 0), Vector(0, 0, 1), 3),  # 4
    Part.Circle(Vector(48.1, 23.8, 0), Vector(0, 0, 1), 3),  # 5
], False)
sketch15.addConstraint([
    Sketcher.Constraint("Equal", 0, 1),
    Sketcher.Constraint("Equal", 1, 2),
    Sketcher.Constraint("Equal", 2, 3),
    Sketcher.Constraint("Equal", 3, 4),
    Sketcher.Constraint("Equal", 4, 5),
    Sketcher.Constraint("Horizontal", 1, 3, 3, 3),
    Sketcher.Constraint("Horizontal", 2, 3, 4, 3),
    Sketcher.Constraint("Horizontal", 0, 3, 5, 3),
    Sketcher.Constraint("Vertical", 0, 3, 1, 3),
    Sketcher.Constraint("Vertical", 1, 3, 2, 3),
    Sketcher.Constraint("Vertical", 3, 3, 4, 3),
    Sketcher.Constraint("Vertical", 4, 3, 5, 3),
    Sketcher.Constraint("Diameter", 0, Q("6 mm")),
    Sketcher.Constraint("DistanceY", 1, 3, 0, 3, Q("10 mm")),
    Sketcher.Constraint("DistanceY", 2, 3, 1, 3, Q("10 mm")),
    Sketcher.Constraint("DistanceX", 1, 3, 3, 3, Q("26 mm")),
    Sketcher.Constraint("DistanceX", -1, 1, 0, 3, Q("22.1 mm")),
    Sketcher.Constraint("DistanceY", -1, 1, 0, 3, Q("23.75 mm")),
])
pocket8 = doc.addObject("PartDesign::Pocket", "Pocket007")
body.addObject(pocket8)
pocket8.Profile = sketch15
pocket8.Length = 3

# Sketch on XZ plane
sketch16 = doc.addObject("Sketcher::SketchObject", "Sketch015")
body.addObject(sketch16)
sketch16.AttachmentSupport = (doc.XZ_Plane, [""])
sketch16.MapMode = "FlatFace"
sketch16.AttachmentOffset = App.Placement(Vector(0, 0, -30), App.Rotation())
add_polygon(sketch16, [(-8, -103), (-8, 0), (0, 0), (0, -103)])  # lines 0-3
add_polygon(sketch16, [(60, -39), (60, -34), (70, -34), (70, 0), (78, 0), (78, -39)])  # lines 4-9
sketch16.addConstraint([
    Sketcher.Constraint("Vertical", 0),
    Sketcher.Constraint("Horizontal", 1),
    Sketcher.Constraint("Vertical", 2),
    Sketcher.Constraint("Horizontal", 3),
    Sketcher.Constraint("Vertical", 4),
    Sketcher.Constraint("Horizontal", 5),
    Sketcher.Constraint("Vertical", 6),
    Sketcher.Constraint("Horizontal", 7),
    Sketcher.Constraint("Vertical", 8),
    Sketcher.Constraint("Horizontal", 9),
    Sketcher.Constraint("Coincident", 1, 2, -1, 1),
    Sketcher.Constraint("PointOnObject", 6, 2, -1),
    Sketcher.Constraint("Equal", 3, 7),
    Sketcher.Constraint("DistanceX", 1, 1, 1, 2, Q("8 mm")),
    Sketcher.Constraint("DistanceX", 5, 1, 5, 2, Q("10.5 mm")),
    Sketcher.Constraint("DistanceY", 0, 1, 0, 2, Q("103.1 mm")),
    Sketcher.Constraint("DistanceY", 4, 1, 4, 2, Q("5.5 mm")),
    Sketcher.Constraint("DistanceY", 6, 1, 6, 2, Q("33.6 mm")),
    Sketcher.Constraint("DistanceX", -1, 1, 5, 2, Q("70 mm")),
])
pocket9 = doc.addObject("PartDesign::Pocket", "Pocket008")
body.addObject(pocket9)
pocket9.Profile = sketch16
pocket9.Length = 30
pocket9.Reversed = True

# Sketch on XY plane
sketch17 = doc.addObject("Sketcher::SketchObject", "Sketch016")
body.addObject(sketch17)
sketch17.AttachmentSupport = (doc.XY_Plane, [""])
sketch17.MapMode = "FlatFace"
sketch17.AttachmentOffset = App.Placement(Vector(0, 0, 9), App.Rotation())
sketch17.addGeometry([
    Part.Circle(Vector(-4, 23, 0), Vector(0, 0, 1), 1.8),
    Part.Circle(Vector(-4, 15, 0), Vector(0, 0, 1), 1.8),
    Part.Circle(Vector(-4, 7, 0), Vector(0, 0, 1), 1.8),
], False)
sketch17.addConstraint([
    Sketcher.Constraint("Equal", 0, 1),
    Sketcher.Constraint("Equal", 1, 2),
    Sketcher.Constraint("Vertical", 0, 3, 1, 3),
    Sketcher.Constraint("Vertical", 1, 3, 2, 3),
    Sketcher.Constraint("Diameter", 0, Q("3.6 mm")),
    Sketcher.Constraint("DistanceX", 0, 3, -1, 1, Q("4 mm")),
    Sketcher.Constraint("DistanceY", -1, 1, 0, 3, Q("23 mm")),
    Sketcher.Constraint("DistanceY", -1, 1, 1, 3, Q("15 mm")),
    Sketcher.Constraint("DistanceY", -1, 1, 2, 3, Q("7 mm")),
])
pocket10 = doc.addObject("PartDesign::Pocket", "Pocket009")
body.addObject(pocket10)
pocket10.Profile = sketch17
pocket10.Length = 10

# Sketch on XY plane
sketch18 = doc.addObject("Sketcher::SketchObject", "Sketch017")
body.addObject(sketch18)
sketch18.AttachmentSupport = (doc.XY_Plane, [""])
sketch18.MapMode = "FlatFace"
sketch18.AttachmentOffset = App.Placement(Vector(0, 0, 9), App.Rotation())
sketch18.addGeometry([
    Part.Circle(Vector(-4, 15, 0), Vector(0, 0, 1), 3.6),
    Part.Circle(Vector(-4, 7, 0), Vector(0, 0, 1), 3.6),
    Part.Circle(Vector(-4, 23, 0), Vector(0, 0, 1), 3.6),
], False)
sketch18.addConstraint([
    Sketcher.Constraint("Equal", 0, 1),
    Sketcher.Constraint("Equal", 1, 2),
    Sketcher.Constraint("Vertical", 0, 3, 1, 3),
    Sketcher.Constraint("Vertical", 1, 3, 2, 3),
    Sketcher.Constraint("Diameter", 0, Q("7.2 mm")),
    Sketcher.Constraint("DistanceX", 0, 3, -1, 1, Q("4 mm")),
    Sketcher.Constraint("DistanceY", -1, 1, 0, 3, Q("15 mm")),
    Sketcher.Constraint("DistanceY", -1, 1, 1, 3, Q("7 mm")),
    Sketcher.Constraint("DistanceY", -1, 1, 2, 3, Q("23 mm")),
])
pocket11 = doc.addObject("PartDesign::Pocket", "Pocket010")
body.addObject(pocket11)
pocket11.Profile = sketch18
pocket11.Length = 3

# Sketch on XY plane
sketch19 = doc.addObject("Sketcher::SketchObject", "Sketch018")
body.addObject(sketch19)
sketch19.AttachmentSupport = (doc.XY_Plane, [""])
sketch19.MapMode = "FlatFace"
sketch19.AttachmentOffset = App.Placement(Vector(0, 0, 9), App.Rotation())
sketch19.addGeometry([
    Part.Circle(Vector(74, 23, 0), Vector(0, 0, 1), 1.8),
    Part.Circle(Vector(74, 15, 0), Vector(0, 0, 1), 1.8),
    Part.Circle(Vector(74, 7, 0), Vector(0, 0, 1), 1.8),
], False)
sketch19.addConstraint([
    Sketcher.Constraint("Equal", 0, 1),
    Sketcher.Constraint("Equal", 1, 2),
    Sketcher.Constraint("Vertical", 0, 3, 1, 3),
    Sketcher.Constraint("Vertical", 1, 3, 2, 3),
    Sketcher.Constraint("Diameter", 0, Q("3.6 mm")),
    Sketcher.Constraint("DistanceX", -1, 1, 0, 3, Q("74 mm")),
    Sketcher.Constraint("DistanceY", -1, 1, 0, 3, Q("23 mm")),
    Sketcher.Constraint("DistanceY", -1, 1, 1, 3, Q("15 mm")),
    Sketcher.Constraint("DistanceY", -1, 1, 2, 3, Q("7 mm")),
])
pocket12 = doc.addObject("PartDesign::Pocket", "Pocket011")
body.addObject(pocket12)
pocket12.Profile = sketch19
pocket12.Length = 10

# Sketch on XY plane
sketch20 = doc.addObject("Sketcher::SketchObject", "Sketch019")
body.addObject(sketch20)
sketch20.AttachmentSupport = (doc.XY_Plane, [""])
sketch20.MapMode = "FlatFace"
sketch20.AttachmentOffset = App.Placement(Vector(0, 0, 9), App.Rotation())
sketch20.addGeometry([
    Part.Circle(Vector(74, 23, 0), Vector(0, 0, 1), 3.6),
    Part.Circle(Vector(74, 15, 0), Vector(0, 0, 1), 3.6),
    Part.Circle(Vector(74, 7, 0), Vector(0, 0, 1), 3.6),
], False)
sketch20.addConstraint([
    Sketcher.Constraint("Equal", 0, 1),
    Sketcher.Constraint("Equal", 1, 2),
    Sketcher.Constraint("Vertical", 0, 3, 1, 3),
    Sketcher.Constraint("Vertical", 1, 3, 2, 3),
    Sketcher.Constraint("Diameter", 0, Q("7.2 mm")),
    Sketcher.Constraint("DistanceX", -1, 1, 0, 3, Q("74 mm")),
    Sketcher.Constraint("DistanceY", -1, 1, 0, 3, Q("23 mm")),
    Sketcher.Constraint("DistanceY", -1, 1, 1, 3, Q("15 mm")),
    Sketcher.Constraint("DistanceY", -1, 1, 2, 3, Q("7 mm")),
])
pocket13 = doc.addObject("PartDesign::Pocket", "Pocket012")
body.addObject(pocket13)
pocket13.Profile = sketch20
pocket13.Length = 3

# Sketch on XY plane
sketch21 = doc.addObject("Sketcher::SketchObject", "Sketch020")
body.addObject(sketch21)
sketch21.AttachmentSupport = (doc.XY_Plane, [""])
sketch21.MapMode = "FlatFace"
sketch21.addGeometry(Part.Circle(Vector(43.1, 4, 0), Vector(0, 0, 1), 1.8), False)
sketch21.addConstraint([
    Sketcher.Constraint("Diameter", 0, Q("3.6 mm")),
    Sketcher.Constraint("DistanceY", -1, 1, 0, 3, Q("4 mm")),
    Sketcher.Constraint("DistanceX", -1, 1, 0, 3, Q("43.1 mm")),
])
pocket14 = doc.addObject("PartDesign::Pocket", "Pocket013")
body.addObject(pocket14)
pocket14.Profile = sketch21
pocket14.Type = "UpToFirst"
pocket14.Reversed = True

# Sketch on XY plane
sketch22 = doc.addObject("Sketcher::SketchObject", "Sketch021")
body.addObject(sketch22)
sketch22.AttachmentSupport = (doc.XY_Plane, [""])
sketch22.MapMode = "FlatFace"
sketch22.addGeometry(Part.Circle(Vector(43.1, 26, 0), Vector(0, 0, 1), 1.8), False)
sketch22.addConstraint([
    Sketcher.Constraint("Diameter", 0, Q("3.6 mm")),
    Sketcher.Constraint("DistanceY", -1, 1, 0, 3, Q("26 mm")),
    Sketcher.Constraint("DistanceX", -1, 1, 0, 3, Q("43.1 mm")),
])
pocket15 = doc.addObject("PartDesign::Pocket", "Pocket014")
body.addObject(pocket15)
pocket15.Profile = sketch22
pocket15.Type = "UpToFirst"
pocket15.Reversed = True

# Sketch on XY plane
sketch23 = doc.addObject("Sketcher::SketchObject", "Sketch022")
body.addObject(sketch23)
sketch23.AttachmentSupport = (doc.XY_Plane, [""])
sketch23.MapMode = "FlatFace"
sketch23.addGeometry(Part.Circle(Vector(27.1, 26, 0), Vector(0, 0, 1), 1.8), False)
sketch23.addConstraint([
    Sketcher.Constraint("Diameter", 0, Q("3.6 mm")),
    Sketcher.Constraint("DistanceY", -1, 1, 0, 3, Q("26 mm")),
    Sketcher.Constraint("DistanceX", -1, 1, 0, 3, Q("27.1 mm")),
])
pocket16 = doc.addObject("PartDesign::Pocket", "Pocket015")
body.addObject(pocket16)
pocket16.Profile = sketch23
pocket16.Type = "UpToFirst"
pocket16.Reversed = True

# Sketch on XY plane
sketch24 = doc.addObject("Sketcher::SketchObject", "Sketch023")
body.addObject(sketch24)
sketch24.AttachmentSupport = (doc.XY_Plane, [""])
sketch24.MapMode = "FlatFace"
sketch24.addGeometry(Part.Circle(Vector(27.1, 4, 0), Vector(0, 0, 1), 1.8), False)
sketch24.addConstraint([
    Sketcher.Constraint("Diameter", 0, Q("3.6 mm")),
    Sketcher.Constraint("DistanceY", -1, 1, 0, 3, Q("4 mm")),
    Sketcher.Constraint("DistanceX", -1, 1, 0, 3, Q("27.1 mm")),
])
pocket17 = doc.addObject("PartDesign::Pocket", "Pocket016")
body.addObject(pocket17)
pocket17.Profile = sketch24
pocket17.Type = "UpToFirst"
pocket17.Reversed = True

doc.recompute()
